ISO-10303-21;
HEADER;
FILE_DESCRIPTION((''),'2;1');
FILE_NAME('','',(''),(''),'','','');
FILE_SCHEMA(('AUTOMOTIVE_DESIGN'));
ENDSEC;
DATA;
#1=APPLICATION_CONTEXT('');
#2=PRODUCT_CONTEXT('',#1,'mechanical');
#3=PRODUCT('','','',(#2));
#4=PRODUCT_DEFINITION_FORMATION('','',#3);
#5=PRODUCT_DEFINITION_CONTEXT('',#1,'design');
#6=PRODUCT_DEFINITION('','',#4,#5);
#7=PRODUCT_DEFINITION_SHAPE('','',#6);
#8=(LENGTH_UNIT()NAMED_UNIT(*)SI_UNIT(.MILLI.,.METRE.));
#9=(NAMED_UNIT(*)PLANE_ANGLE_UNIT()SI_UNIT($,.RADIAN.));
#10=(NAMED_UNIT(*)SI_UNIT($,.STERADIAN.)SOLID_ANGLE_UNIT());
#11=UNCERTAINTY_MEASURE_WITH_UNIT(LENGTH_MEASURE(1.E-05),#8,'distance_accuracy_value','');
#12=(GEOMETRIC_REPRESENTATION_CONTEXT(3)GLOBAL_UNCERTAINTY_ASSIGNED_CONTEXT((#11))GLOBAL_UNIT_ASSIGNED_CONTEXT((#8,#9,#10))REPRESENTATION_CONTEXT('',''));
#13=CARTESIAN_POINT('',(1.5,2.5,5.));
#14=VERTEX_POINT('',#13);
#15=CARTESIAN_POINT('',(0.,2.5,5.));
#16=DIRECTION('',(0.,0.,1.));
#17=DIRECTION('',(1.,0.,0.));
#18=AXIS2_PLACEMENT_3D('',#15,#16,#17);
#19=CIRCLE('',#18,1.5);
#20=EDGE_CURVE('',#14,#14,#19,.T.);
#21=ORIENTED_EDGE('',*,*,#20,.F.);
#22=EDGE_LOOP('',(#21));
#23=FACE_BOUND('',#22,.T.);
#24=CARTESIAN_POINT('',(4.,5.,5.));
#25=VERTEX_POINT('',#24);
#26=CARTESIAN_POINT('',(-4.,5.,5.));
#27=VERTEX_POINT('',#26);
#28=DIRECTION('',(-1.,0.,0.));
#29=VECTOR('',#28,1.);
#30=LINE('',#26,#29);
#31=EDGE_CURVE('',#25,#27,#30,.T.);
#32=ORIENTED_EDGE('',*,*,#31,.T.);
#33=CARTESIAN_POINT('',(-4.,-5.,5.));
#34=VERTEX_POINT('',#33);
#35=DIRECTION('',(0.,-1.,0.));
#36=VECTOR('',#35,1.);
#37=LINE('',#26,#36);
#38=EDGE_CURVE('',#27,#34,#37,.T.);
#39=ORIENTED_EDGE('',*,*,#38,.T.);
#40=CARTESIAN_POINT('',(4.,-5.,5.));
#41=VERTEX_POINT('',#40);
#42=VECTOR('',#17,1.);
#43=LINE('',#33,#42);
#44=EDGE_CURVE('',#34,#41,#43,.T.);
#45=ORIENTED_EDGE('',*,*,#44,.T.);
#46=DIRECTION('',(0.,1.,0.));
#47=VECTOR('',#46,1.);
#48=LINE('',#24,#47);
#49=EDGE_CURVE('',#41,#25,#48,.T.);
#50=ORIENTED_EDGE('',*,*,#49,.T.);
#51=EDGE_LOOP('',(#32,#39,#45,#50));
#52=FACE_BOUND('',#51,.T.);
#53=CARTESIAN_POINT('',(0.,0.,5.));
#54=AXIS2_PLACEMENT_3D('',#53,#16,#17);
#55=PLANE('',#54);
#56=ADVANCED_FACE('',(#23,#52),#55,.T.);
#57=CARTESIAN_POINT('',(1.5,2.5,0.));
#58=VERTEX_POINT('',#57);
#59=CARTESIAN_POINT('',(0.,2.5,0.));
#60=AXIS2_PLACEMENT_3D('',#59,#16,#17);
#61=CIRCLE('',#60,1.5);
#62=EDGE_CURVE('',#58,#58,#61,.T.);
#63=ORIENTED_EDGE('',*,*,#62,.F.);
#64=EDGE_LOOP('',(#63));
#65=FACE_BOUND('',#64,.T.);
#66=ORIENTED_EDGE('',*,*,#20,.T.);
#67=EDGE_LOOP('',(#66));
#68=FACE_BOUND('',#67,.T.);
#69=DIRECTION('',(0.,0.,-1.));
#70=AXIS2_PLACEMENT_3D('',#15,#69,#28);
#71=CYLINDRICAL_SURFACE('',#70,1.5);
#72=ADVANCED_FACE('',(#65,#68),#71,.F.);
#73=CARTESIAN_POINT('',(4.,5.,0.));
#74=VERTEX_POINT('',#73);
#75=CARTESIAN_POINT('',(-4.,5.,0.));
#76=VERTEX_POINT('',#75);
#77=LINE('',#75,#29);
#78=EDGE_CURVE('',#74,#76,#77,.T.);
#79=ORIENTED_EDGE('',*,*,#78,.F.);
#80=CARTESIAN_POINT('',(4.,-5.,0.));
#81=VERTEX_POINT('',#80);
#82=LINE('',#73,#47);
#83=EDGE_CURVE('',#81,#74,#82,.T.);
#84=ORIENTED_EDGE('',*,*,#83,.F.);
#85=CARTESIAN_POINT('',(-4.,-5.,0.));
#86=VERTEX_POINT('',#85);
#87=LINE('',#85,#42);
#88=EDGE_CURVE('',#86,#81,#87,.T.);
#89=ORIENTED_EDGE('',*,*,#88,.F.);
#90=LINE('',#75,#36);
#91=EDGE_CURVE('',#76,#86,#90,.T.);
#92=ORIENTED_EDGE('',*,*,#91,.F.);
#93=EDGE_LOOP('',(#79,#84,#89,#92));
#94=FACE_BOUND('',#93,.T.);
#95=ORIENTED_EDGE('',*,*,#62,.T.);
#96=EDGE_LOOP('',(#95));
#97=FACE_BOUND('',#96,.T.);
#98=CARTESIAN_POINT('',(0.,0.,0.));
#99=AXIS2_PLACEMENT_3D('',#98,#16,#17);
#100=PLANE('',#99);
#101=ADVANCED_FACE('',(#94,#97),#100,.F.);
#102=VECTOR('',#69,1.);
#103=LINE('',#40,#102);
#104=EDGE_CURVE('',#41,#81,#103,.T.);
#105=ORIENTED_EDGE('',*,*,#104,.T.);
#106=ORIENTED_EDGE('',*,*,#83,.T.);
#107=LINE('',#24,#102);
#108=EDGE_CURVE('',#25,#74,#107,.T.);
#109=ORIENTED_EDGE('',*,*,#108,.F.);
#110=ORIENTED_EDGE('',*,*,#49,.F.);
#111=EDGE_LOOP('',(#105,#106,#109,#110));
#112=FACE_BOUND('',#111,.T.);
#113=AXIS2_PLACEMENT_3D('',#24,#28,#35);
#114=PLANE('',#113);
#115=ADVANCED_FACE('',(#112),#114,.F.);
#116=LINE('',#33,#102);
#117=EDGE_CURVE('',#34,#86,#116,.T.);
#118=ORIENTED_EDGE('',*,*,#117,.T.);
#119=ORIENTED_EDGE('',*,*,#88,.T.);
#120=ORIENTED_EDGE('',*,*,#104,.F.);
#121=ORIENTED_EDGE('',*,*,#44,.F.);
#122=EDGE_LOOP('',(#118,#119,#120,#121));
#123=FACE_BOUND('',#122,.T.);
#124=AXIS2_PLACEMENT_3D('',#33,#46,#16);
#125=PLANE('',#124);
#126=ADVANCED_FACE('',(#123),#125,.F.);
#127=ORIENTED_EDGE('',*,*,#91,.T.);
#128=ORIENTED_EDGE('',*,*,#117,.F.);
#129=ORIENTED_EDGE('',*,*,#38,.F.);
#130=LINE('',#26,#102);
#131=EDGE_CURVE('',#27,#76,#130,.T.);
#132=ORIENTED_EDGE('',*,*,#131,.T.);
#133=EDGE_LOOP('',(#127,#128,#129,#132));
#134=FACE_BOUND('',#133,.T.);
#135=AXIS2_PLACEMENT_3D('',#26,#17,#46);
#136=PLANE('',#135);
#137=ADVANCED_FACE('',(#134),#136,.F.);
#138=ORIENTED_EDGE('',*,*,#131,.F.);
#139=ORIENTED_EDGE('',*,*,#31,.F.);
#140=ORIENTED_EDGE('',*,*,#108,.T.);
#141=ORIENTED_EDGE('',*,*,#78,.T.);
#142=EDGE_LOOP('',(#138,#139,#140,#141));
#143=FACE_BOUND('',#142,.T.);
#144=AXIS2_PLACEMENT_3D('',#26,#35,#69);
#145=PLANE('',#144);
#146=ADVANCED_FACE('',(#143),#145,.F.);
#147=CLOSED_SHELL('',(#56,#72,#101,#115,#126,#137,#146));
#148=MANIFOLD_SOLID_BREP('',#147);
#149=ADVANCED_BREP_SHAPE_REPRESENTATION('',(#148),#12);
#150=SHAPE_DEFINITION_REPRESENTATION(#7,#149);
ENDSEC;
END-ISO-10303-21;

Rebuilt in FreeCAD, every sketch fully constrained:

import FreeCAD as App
import Part
import Sketcher
from FreeCAD import Vector
Q = App.Units.Quantity

doc = App.newDocument("Part")
body = doc.addObject("PartDesign::Body", "Body")

# Sketch on XY plane
sketch1 = body.newObject("Sketcher::SketchObject", "Sketch")
sketch1.AttachmentSupport = (doc.getObject("XY_Plane"), [""])
sketch1.MapMode = "FlatFace"
sketch1.addGeometry([
    Part.LineSegment(Vector(-4, 5, 0), Vector(-4, -5, 0)),  # 0
    Part.LineSegment(Vector(-4, -5, 0), Vector(4, -5, 0)),  # 1
    Part.LineSegment(Vector(4, -5, 0), Vector(4, 5, 0)),  # 2
    Part.LineSegment(Vector(4, 5, 0), Vector(-4, 5, 0)),  # 3
    Part.Circle(Vector(0, 2.5, 0), Vector(0, 0, 1), 1.5),  # 4
], False)
sketch1.addConstraint([
    Sketcher.Constraint("Coincident", 0, 2, 1, 1),
    Sketcher.Constraint("Coincident", 1, 2, 2, 1),
    Sketcher.Constraint("Coincident", 2, 2, 3, 1),
    Sketcher.Constraint("Coincident", 3, 2, 0, 1),
    Sketcher.Constraint("Vertical", 0),
    Sketcher.Constraint("Horizontal", 1),
    Sketcher.Constraint("Vertical", 2),
    Sketcher.Constraint("Horizontal", 3),
    Sketcher.Constraint("Symmetric", 0, 2, 2, 2, -1, 1),
    Sketcher.Constraint("PointOnObject", 4, 3, -2),
    Sketcher.Constraint("Diameter", 4, Q("3 mm")),
    Sketcher.Constraint("DistanceX", 1, 1, 1, 2, Q("8 mm")),
    Sketcher.Constraint("DistanceY", 0, 2, 0, 1, Q("10 mm")),
    Sketcher.Constraint("DistanceY", -1, 1, 4, 3, Q("2.5 mm")),
])
pad1 = body.newObject("PartDesign::Pad", "Pad")
pad1.Profile = sketch1
pad1.Length = 5

doc.recompute()
